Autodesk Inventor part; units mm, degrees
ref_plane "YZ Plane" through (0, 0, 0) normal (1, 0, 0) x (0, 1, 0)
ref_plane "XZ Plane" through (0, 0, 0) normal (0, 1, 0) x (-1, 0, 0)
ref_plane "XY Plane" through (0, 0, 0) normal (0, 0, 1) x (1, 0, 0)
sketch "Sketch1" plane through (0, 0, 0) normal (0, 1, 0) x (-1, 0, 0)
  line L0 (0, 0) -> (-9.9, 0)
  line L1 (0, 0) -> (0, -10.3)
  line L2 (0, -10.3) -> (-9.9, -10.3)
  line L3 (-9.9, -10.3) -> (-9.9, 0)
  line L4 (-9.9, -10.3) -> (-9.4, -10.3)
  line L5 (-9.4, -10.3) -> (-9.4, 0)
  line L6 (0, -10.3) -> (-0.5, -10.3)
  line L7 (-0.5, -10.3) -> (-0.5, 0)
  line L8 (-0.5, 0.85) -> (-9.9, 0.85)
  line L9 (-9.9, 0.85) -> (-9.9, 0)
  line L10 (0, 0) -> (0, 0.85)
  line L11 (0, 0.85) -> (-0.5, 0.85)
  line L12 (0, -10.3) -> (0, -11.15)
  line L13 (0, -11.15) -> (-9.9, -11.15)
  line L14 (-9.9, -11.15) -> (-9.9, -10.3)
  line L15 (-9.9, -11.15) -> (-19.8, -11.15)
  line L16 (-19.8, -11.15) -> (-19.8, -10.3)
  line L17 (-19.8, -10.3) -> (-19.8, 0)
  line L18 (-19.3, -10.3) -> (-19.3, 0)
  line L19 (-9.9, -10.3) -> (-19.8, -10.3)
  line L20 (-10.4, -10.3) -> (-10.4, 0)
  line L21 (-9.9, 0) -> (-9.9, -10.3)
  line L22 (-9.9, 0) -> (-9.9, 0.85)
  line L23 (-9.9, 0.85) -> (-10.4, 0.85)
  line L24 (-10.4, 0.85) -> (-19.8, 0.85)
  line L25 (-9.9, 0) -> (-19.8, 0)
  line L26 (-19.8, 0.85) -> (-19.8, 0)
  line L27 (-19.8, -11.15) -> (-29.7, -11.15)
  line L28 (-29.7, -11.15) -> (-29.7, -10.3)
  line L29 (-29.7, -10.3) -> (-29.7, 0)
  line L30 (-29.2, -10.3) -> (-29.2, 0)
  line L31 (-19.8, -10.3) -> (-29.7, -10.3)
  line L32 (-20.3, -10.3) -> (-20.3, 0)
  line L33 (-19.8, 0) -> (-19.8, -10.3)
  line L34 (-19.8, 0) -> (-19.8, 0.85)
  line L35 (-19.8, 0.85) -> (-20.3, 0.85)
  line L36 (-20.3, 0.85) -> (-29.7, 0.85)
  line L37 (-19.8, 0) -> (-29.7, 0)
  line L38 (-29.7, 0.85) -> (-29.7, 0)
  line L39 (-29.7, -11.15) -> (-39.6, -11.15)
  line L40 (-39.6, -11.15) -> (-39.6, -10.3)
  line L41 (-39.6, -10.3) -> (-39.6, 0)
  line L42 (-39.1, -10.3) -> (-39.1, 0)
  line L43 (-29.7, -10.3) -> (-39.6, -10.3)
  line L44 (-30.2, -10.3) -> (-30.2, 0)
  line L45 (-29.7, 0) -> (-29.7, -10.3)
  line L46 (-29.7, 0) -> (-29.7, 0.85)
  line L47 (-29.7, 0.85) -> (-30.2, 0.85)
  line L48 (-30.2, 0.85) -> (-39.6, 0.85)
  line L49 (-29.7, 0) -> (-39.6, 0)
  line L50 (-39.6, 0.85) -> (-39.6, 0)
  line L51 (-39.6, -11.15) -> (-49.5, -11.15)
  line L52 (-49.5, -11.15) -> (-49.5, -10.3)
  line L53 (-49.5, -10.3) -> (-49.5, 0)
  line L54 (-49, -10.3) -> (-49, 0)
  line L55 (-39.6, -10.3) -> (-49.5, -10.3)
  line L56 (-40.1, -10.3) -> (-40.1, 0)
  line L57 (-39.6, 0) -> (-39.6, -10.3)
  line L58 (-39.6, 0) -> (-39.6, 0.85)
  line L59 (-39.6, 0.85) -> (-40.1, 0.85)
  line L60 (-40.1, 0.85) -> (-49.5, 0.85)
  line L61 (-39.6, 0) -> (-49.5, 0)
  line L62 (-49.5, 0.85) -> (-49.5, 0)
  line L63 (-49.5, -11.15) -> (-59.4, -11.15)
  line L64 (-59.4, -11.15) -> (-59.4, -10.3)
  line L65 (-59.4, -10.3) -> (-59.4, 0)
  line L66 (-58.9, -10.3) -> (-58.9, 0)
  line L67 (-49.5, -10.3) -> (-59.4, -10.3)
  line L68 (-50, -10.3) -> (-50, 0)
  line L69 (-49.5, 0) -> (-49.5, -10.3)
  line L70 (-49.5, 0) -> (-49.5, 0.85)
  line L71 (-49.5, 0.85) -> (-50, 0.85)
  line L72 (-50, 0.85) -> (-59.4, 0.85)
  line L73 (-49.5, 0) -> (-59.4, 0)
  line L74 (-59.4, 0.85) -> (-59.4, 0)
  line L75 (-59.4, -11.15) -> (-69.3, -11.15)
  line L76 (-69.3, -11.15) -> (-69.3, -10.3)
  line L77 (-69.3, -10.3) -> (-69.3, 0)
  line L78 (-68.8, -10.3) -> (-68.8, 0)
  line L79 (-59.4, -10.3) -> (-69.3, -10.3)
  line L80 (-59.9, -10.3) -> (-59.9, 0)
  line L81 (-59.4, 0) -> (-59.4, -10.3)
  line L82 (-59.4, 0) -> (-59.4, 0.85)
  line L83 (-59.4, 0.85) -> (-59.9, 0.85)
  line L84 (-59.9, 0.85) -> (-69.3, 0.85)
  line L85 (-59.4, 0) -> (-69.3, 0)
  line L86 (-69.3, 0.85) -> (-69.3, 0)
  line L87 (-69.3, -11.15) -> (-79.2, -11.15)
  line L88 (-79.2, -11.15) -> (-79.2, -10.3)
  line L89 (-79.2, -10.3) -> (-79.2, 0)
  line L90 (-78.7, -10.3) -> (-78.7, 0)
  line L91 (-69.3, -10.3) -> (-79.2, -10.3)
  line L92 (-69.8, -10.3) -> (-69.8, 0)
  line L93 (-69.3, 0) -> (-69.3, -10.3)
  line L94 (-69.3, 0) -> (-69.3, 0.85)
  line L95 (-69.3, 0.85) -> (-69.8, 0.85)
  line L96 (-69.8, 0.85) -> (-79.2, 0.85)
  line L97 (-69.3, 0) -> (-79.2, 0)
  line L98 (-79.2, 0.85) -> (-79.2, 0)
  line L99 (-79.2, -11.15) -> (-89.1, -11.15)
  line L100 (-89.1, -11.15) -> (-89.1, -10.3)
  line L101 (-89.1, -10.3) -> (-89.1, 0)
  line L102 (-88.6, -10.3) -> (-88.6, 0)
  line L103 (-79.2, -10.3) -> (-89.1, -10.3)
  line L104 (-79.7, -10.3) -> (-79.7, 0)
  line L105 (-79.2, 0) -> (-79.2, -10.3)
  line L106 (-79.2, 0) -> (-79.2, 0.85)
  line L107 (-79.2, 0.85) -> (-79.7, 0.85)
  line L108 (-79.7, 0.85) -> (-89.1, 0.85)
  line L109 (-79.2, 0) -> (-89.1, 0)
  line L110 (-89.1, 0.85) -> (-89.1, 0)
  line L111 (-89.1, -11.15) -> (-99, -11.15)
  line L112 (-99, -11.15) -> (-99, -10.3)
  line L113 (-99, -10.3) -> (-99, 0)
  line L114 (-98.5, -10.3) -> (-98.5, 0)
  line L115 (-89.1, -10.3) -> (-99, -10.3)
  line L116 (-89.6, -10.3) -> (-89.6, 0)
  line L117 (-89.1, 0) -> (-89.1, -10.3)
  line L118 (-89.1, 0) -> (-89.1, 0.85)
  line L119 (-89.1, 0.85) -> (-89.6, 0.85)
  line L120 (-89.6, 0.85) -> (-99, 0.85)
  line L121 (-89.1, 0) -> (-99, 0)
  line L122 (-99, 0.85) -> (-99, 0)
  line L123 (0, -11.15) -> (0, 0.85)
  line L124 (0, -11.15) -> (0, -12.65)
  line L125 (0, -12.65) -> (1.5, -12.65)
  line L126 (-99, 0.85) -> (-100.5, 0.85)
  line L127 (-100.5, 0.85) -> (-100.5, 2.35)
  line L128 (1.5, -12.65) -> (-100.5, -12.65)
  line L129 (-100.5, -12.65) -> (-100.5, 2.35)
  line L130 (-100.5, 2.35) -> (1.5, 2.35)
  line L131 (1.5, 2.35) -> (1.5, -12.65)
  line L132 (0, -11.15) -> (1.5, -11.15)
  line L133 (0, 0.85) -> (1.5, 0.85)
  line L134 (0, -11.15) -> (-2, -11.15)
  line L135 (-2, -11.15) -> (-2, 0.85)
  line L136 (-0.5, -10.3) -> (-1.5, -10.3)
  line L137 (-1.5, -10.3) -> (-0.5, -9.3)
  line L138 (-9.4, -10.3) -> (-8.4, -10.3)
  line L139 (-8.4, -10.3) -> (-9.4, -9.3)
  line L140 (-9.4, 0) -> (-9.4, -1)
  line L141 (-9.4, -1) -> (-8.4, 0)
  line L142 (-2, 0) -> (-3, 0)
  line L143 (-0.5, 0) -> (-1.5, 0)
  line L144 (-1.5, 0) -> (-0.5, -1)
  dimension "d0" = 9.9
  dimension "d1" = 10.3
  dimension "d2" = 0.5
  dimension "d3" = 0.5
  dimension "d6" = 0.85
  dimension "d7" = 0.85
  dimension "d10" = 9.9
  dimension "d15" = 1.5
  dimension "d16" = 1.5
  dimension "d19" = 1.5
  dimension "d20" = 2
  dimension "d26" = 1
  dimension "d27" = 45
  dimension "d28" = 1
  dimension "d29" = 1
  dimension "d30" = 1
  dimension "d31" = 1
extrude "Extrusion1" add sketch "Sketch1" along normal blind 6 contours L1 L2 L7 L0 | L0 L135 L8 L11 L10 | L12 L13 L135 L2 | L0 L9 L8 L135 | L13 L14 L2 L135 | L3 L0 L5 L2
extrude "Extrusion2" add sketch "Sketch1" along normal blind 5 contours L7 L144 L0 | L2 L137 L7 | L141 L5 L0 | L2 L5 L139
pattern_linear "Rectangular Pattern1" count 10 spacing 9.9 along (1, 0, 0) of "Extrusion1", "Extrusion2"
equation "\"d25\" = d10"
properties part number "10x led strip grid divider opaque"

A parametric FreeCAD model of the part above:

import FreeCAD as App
import Part
import Sketcher

V = App.Vector
Q = App.Units.Quantity


def add_polygon(sketch, points):
    """Adds a closed chain of lines whose ends are joined by coincident constraints."""
    first, n = sketch.GeometryCount, len(points)
    for a, b in zip(points, points[1:] + points[:1]):
        sketch.addGeometry(Part.LineSegment(App.Vector(*a, 0), App.Vector(*b, 0)), False)
    for i in range(n):
        sketch.addConstraint(Sketcher.Constraint("Coincident", first + i, 2, first + (i + 1) % n, 1))

doc = App.newDocument("Part")
body = doc.addObject("PartDesign::Body", "Body")

# Sketch on XZ plane
sketch1 = doc.addObject("Sketcher::SketchObject", "Sketch")
body.addObject(sketch1)
sketch1.AttachmentSupport = (doc.XZ_Plane, [""])
sketch1.MapMode = "FlatFace"
add_polygon(sketch1, [(0, 1), (10, 1), (10, -11), (0, -11)])  # lines 0-3
add_polygon(sketch1, [(0, -10), (9, -10), (9, 0), (0, 0)])  # lines 4-7
sketch1.addConstraint(Sketcher.Constraint("Horizontal", 0))
sketch1.addConstraint(Sketcher.Constraint("Vertical", 1))
sketch1.addConstraint(Sketcher.Constraint("Horizontal", 2))
sketch1.addConstraint(Sketcher.Constraint("Vertical", 3))
sketch1.addConstraint(Sketcher.Constraint("Horizontal", 4))
sketch1.addConstraint(Sketcher.Constraint("Vertical", 5))
sketch1.addConstraint(Sketcher.Constraint("Horizontal", 6))
sketch1.addConstraint(Sketcher.Constraint("Vertical", 7))
sketch1.addConstraint(Sketcher.Constraint("PointOnObject", 2, 2, -2))
sketch1.addConstraint(Sketcher.Constraint("PointOnObject", 5, 2, -1))
sketch1.addConstraint(Sketcher.Constraint("DistanceX", 0, 1, 0, 2, Q("9.9 mm")))
sketch1.addConstraint(Sketcher.Constraint("DistanceY", 5, 1, 5, 2, Q("10.3 mm")))
sketch1.addConstraint(Sketcher.Constraint("DistanceX", -1, 1, 6, 2, Q("0.5 mm")))
sketch1.addConstraint(Sketcher.Constraint("DistanceX", 4, 2, 1, 2, Q("0.5 mm")))
sketch1.addConstraint(Sketcher.Constraint("DistanceY", 1, 2, 1, 1, Q("12 mm")))
sketch1.addConstraint(Sketcher.Constraint("DistanceY", -1, 1, 0, 2, Q("0.85 mm")))
pad1 = doc.addObject("PartDesign::Pad", "Pad")
body.addObject(pad1)
pad1.Profile = sketch1
pad1.Length = 6
pad1.Reversed = True

# Sketch on XZ plane
sketch2 = doc.addObject("Sketcher::SketchObject", "Sketch001")
body.addObject(sketch2)
sketch2.AttachmentSupport = (doc.XZ_Plane, [""])
sketch2.MapMode = "FlatFace"
add_polygon(sketch2, [(0.5, -1), (0.5, 0), (1.5, 0)])  # lines 0-2
add_polygon(sketch2, [(1.5, -10.3), (0.5, -10.3), (0.5, -9.3)])  # lines 3-5
add_polygon(sketch2, [(9.4, -1), (8.4, 0), (9.4, 0)])  # lines 6-8
add_polygon(sketch2, [(9.4, -10.3), (8.4, -10.3), (9.4, -9.3)])  # lines 9-11
sketch2.addConstraint(Sketcher.Constraint("Vertical", 0))
sketch2.addConstraint(Sketcher.Constraint("Horizontal", 1))
sketch2.addConstraint(Sketcher.Constraint("Horizontal", 3))
sketch2.addConstraint(Sketcher.Constraint("Vertical", 4))
sketch2.addConstraint(Sketcher.Constraint("Horizontal", 7))
sketch2.addConstraint(Sketcher.Constraint("Vertical", 8))
sketch2.addConstraint(Sketcher.Constraint("Horizontal", 9))
sketch2.addConstraint(Sketcher.Constraint("Vertical", 11))
sketch2.addConstraint(Sketcher.Constraint("PointOnObject", 0, 2, -1))
sketch2.addConstraint(Sketcher.Constraint("PointOnObject", 6, 2, -1))
sketch2.addConstraint(Sketcher.Constraint("Perpendicular", 2, 5))
sketch2.addConstraint(Sketcher.Constraint("Parallel", 5, 6))
sketch2.addConstraint(Sketcher.Constraint("Perpendicular", 6, 10))
sketch2.addConstraint(Sketcher.Constraint("Horizontal", 2, 2, 8, 2))
sketch2.addConstraint(Sketcher.Constraint("Horizontal", 5, 2, 9, 2))
sketch2.addConstraint(Sketcher.Constraint("Horizontal", 4, 2, 10, 2))
sketch2.addConstraint(Sketcher.Constraint("Vertical", 2, 2, 3, 2))
sketch2.addConstraint(Sketcher.Constraint("Vertical", 1, 2, 5, 2))
sketch2.addConstraint(Sketcher.Constraint("Vertical", 6, 2, 9, 2))
sketch2.addConstraint(Sketcher.Constraint("Vertical", 8, 2, 10, 2))
sketch2.addConstraint(Sketcher.Constraint("DistanceX", 1, 1, 1, 2, Q("1 mm")))
sketch2.addConstraint(Sketcher.Constraint("DistanceX", -1, 1, 0, 2, Q("0.5 mm")))
sketch2.addConstraint(Sketcher.Constraint("DistanceY", 3, 2, -1, 1, Q("10.3 mm")))
sketch2.addConstraint(Sketcher.Constraint("DistanceX", -1, 1, 6, 2, Q("8.4 mm")))
pad2 = doc.addObject("PartDesign::Pad", "Pad001")
body.addObject(pad2)
pad2.Profile = sketch2
pad2.Length = 5
pad2.Reversed = True
doc.recompute()

linearpattern = doc.addObject("PartDesign::LinearPattern", "LinearPattern")
body.addObject(linearpattern)
linearpattern.Originals = [pad1, pad2]
linearpattern.Direction = (doc.X_Axis, [""])
linearpattern.Mode = "offset"
linearpattern.Offset = 9.9
linearpattern.Occurrences = 10
body.Tip = linearpattern

doc.recompute()
